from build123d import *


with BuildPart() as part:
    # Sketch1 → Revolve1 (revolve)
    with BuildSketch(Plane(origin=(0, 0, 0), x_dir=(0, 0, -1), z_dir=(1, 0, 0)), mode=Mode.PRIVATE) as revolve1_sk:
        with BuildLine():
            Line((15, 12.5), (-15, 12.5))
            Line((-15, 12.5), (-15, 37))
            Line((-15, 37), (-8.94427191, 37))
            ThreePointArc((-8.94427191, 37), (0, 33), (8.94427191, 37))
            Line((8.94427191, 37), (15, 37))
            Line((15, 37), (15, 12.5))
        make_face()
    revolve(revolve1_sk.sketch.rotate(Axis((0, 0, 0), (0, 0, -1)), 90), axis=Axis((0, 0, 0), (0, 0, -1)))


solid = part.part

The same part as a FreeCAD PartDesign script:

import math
import FreeCAD as App
import Part
import Sketcher
from FreeCAD import Vector
Q = App.Units.Quantity

doc = App.newDocument("Part")
body = doc.addObject("PartDesign::Body", "Body")

# Sketch on YZ plane
sketch1 = body.newObject("Sketcher::SketchObject", "Sketch")
sketch1.AttachmentSupport = (doc.getObject("YZ_Plane"), [""])
sketch1.MapMode = "FlatFace"
sketch1.addGeometry([
    Part.LineSegment(Vector(12.5, 15, 0), Vector(12.5, -15, 0)),  # 0
    Part.LineSegment(Vector(12.5, -15, 0), Vector(37, -15, 0)),  # 1
    Part.LineSegment(Vector(37, -15, 0), Vector(37, -8.944272, 0)),  # 2
    Part.ArcOfCircle(Part.Circle(Vector(45, 0, 0), Vector(0, 0, 1), 12), math.radians(131.810315), math.radians(228.189685)),  # 3
    Part.LineSegment(Vector(37, 8.944272, 0), Vector(37, 15, 0)),  # 4
    Part.LineSegment(Vector(37, 15, 0), Vector(12.5, 15, 0)),  # 5
], False)
sketch1.addConstraint([
    Sketcher.Constraint("Coincident", 0, 2, 1, 1),
    Sketcher.Constraint("Coincident", 1, 2, 2, 1),
    Sketcher.Constraint("Coincident", 2, 2, 3, 2),
    Sketcher.Constraint("Coincident", 3, 1, 4, 1),
    Sketcher.Constraint("Coincident", 4, 2, 5, 1),
    Sketcher.Constraint("Coincident", 5, 2, 0, 1),
    Sketcher.Constraint("Vertical", 0),
    Sketcher.Constraint("Horizontal", 1),
    Sketcher.Constraint("Vertical", 2),
    Sketcher.Constraint("Vertical", 4),
    Sketcher.Constraint("Horizontal", 5),
    Sketcher.Constraint("Symmetric", 2, 2, 3, 1, -1),
    Sketcher.Constraint("Equal", 2, 4),
    Sketcher.Constraint("Radius", 3, Q("12 mm")),
    Sketcher.Constraint("DistanceY", 0, 2, 0, 1, Q("30 mm")),
    Sketcher.Constraint("DistanceX", 1, 1, 1, 2, Q("24.5 mm")),
    Sketcher.Constraint("DistanceX", -1, 1, 3, 3, Q("45 mm")),
    Sketcher.Constraint("DistanceX", -1, 1, 1, 2, Q("37 mm")),
])
revolution = body.newObject("PartDesign::Revolution", "Revolution")
revolution.Profile = sketch1
revolution.ReferenceAxis = (sketch1, ["V_Axis"])
revolution.Angle = 360

doc.recompute()
